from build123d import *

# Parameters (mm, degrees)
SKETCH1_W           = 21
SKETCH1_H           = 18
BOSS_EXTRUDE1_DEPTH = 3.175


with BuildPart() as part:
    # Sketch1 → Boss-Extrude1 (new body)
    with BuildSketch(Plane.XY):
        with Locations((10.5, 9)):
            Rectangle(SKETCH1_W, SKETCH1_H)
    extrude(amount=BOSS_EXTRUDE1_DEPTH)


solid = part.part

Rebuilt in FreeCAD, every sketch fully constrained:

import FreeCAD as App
import Part
import Sketcher
Q = App.Units.Quantity


def add_polygon(sketch, points):
    """Adds a closed chain of lines whose ends are joined by coincident constraints."""
    first, n = sketch.GeometryCount, len(points)
    for a, b in zip(points, points[1:] + points[:1]):
        sketch.addGeometry(Part.LineSegment(App.Vector(*a, 0), App.Vector(*b, 0)), False)
    for i in range(n):
        sketch.addConstraint(Sketcher.Constraint("Coincident", first + i, 2, first + (i + 1) % n, 1))

doc = App.newDocument("Part")
body = doc.addObject("PartDesign::Body", "Body")

sketch1 = doc.addObject("Sketcher::SketchObject", "Sketch")
body.addObject(sketch1)
sketch1.AttachmentSupport = (doc.XY_Plane, [""])
sketch1.MapMode = "FlatFace"
add_polygon(sketch1, [(0, 18), (0, 0), (21, 0), (21, 18)])
sketch1.addConstraint(Sketcher.Constraint("Vertical", 0))
sketch1.addConstraint(Sketcher.Constraint("Horizontal", 1))
sketch1.addConstraint(Sketcher.Constraint("Vertical", 2))
sketch1.addConstraint(Sketcher.Constraint("Horizontal", 3))
sketch1.addConstraint(Sketcher.Constraint("Coincident", 0, 2, -1, 1))
sketch1.addConstraint(Sketcher.Constraint("DistanceX", 1, 1, 1, 2, Q("21 mm")))
sketch1.addConstraint(Sketcher.Constraint("DistanceY", 0, 2, 0, 1, Q("18 mm")))
pad1 = doc.addObject("PartDesign::Pad", "Pad")
body.addObject(pad1)
pad1.Profile = sketch1
pad1.Length = 3.175

doc.recompute()
